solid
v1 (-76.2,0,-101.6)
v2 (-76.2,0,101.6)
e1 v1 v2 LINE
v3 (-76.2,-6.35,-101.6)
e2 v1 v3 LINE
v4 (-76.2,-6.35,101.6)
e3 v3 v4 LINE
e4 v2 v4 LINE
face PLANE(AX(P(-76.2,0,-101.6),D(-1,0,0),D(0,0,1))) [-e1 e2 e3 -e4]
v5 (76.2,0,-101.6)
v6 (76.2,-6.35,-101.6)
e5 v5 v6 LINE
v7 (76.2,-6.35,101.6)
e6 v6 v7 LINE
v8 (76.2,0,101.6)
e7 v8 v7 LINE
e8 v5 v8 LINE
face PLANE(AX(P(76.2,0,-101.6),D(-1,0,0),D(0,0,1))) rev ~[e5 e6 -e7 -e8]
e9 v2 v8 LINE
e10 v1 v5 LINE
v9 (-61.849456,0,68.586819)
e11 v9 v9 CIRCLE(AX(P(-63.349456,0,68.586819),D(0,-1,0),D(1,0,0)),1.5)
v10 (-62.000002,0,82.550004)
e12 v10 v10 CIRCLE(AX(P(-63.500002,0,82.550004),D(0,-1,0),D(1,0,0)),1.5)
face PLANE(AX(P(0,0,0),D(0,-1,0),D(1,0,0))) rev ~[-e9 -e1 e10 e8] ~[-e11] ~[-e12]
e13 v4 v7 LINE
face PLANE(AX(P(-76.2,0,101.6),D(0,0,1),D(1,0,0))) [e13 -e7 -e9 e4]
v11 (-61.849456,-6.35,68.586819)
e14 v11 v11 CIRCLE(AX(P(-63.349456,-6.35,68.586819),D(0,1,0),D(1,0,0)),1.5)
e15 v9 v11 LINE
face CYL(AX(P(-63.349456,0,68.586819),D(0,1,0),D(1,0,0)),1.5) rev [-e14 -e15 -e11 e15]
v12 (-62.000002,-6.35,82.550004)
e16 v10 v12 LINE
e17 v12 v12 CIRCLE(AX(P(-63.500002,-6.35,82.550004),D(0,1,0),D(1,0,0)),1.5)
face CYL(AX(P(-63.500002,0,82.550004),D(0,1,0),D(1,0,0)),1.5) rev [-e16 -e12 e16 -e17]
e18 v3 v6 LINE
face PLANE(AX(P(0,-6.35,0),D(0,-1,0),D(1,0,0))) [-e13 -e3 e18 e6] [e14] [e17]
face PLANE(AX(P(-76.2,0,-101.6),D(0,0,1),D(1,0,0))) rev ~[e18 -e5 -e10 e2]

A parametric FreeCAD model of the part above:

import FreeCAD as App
import Part
import Sketcher
from FreeCAD import Vector
Q = App.Units.Quantity


def add_polygon(sketch, points):
    """Adds a closed chain of lines whose ends are joined by coincident constraints."""
    first, n = sketch.GeometryCount, len(points)
    for a, b in zip(points, points[1:] + points[:1]):
        sketch.addGeometry(Part.LineSegment(App.Vector(*a, 0), App.Vector(*b, 0)), False)
    for i in range(n):
        sketch.addConstraint(Sketcher.Constraint("Coincident", first + i, 2, first + (i + 1) % n, 1))

doc = App.newDocument("Part")
body = doc.addObject("PartDesign::Body", "Body")

# Sketch on XZ plane
sketch1 = body.newObject("Sketcher::SketchObject", "Sketch")
sketch1.AttachmentSupport = (doc.getObject("XZ_Plane"), [""])
sketch1.MapMode = "FlatFace"
add_polygon(sketch1, [(-76, 102), (-76, -102), (76, -102), (76, 102)])  # lines 0-3
sketch1.addConstraint([
    Sketcher.Constraint("Vertical", 0),
    Sketcher.Constraint("Horizontal", 1),
    Sketcher.Constraint("Vertical", 2),
    Sketcher.Constraint("Horizontal", 3),
    Sketcher.Constraint("Symmetric", 0, 2, 2, 2, -1, 1),
    Sketcher.Constraint("DistanceX", 1, 1, 1, 2, Q("6 in")),
    Sketcher.Constraint("DistanceY", 0, 2, 0, 1, Q("8 in")),
])
pad1 = body.newObject("PartDesign::Pad", "Pad")
pad1.Profile = sketch1
pad1.Length = Q("0.25 in")

# Sketch on XZ plane
sketch2 = body.newObject("Sketcher::SketchObject", "Sketch001")
sketch2.AttachmentSupport = (doc.getObject("XZ_Plane"), [""])
sketch2.MapMode = "FlatFace"
sketch2.addGeometry([
    Part.Circle(Vector(-63.5, 82.6, 0), Vector(0, 0, 1), 1.5),
    Part.Circle(Vector(-63.3, 68.6, 0), Vector(0, 0, 1), 1.5),
], False)
sketch2.addConstraint([
    Sketcher.Constraint("Equal", 0, 1),
    Sketcher.Constraint("DistanceX", 0, 3, -1, 1, Q("2.5000001 in")),
    Sketcher.Constraint("Diameter", 0, Q("3 mm")),
    Sketcher.Constraint("DistanceY", -1, 1, 0, 3, Q("3.2500002 in")),
    Sketcher.Constraint("DistanceY", -1, 1, 1, 3, Q("68.586819 mm")),
    Sketcher.Constraint("DistanceX", 1, 3, -1, 1, Q("63.349456 mm")),
])
pocket1 = body.newObject("PartDesign::Pocket", "Pocket")
pocket1.Profile = sketch2
pocket1.Length = Q("1 in")
pocket1.Reversed = True

doc.recompute()
